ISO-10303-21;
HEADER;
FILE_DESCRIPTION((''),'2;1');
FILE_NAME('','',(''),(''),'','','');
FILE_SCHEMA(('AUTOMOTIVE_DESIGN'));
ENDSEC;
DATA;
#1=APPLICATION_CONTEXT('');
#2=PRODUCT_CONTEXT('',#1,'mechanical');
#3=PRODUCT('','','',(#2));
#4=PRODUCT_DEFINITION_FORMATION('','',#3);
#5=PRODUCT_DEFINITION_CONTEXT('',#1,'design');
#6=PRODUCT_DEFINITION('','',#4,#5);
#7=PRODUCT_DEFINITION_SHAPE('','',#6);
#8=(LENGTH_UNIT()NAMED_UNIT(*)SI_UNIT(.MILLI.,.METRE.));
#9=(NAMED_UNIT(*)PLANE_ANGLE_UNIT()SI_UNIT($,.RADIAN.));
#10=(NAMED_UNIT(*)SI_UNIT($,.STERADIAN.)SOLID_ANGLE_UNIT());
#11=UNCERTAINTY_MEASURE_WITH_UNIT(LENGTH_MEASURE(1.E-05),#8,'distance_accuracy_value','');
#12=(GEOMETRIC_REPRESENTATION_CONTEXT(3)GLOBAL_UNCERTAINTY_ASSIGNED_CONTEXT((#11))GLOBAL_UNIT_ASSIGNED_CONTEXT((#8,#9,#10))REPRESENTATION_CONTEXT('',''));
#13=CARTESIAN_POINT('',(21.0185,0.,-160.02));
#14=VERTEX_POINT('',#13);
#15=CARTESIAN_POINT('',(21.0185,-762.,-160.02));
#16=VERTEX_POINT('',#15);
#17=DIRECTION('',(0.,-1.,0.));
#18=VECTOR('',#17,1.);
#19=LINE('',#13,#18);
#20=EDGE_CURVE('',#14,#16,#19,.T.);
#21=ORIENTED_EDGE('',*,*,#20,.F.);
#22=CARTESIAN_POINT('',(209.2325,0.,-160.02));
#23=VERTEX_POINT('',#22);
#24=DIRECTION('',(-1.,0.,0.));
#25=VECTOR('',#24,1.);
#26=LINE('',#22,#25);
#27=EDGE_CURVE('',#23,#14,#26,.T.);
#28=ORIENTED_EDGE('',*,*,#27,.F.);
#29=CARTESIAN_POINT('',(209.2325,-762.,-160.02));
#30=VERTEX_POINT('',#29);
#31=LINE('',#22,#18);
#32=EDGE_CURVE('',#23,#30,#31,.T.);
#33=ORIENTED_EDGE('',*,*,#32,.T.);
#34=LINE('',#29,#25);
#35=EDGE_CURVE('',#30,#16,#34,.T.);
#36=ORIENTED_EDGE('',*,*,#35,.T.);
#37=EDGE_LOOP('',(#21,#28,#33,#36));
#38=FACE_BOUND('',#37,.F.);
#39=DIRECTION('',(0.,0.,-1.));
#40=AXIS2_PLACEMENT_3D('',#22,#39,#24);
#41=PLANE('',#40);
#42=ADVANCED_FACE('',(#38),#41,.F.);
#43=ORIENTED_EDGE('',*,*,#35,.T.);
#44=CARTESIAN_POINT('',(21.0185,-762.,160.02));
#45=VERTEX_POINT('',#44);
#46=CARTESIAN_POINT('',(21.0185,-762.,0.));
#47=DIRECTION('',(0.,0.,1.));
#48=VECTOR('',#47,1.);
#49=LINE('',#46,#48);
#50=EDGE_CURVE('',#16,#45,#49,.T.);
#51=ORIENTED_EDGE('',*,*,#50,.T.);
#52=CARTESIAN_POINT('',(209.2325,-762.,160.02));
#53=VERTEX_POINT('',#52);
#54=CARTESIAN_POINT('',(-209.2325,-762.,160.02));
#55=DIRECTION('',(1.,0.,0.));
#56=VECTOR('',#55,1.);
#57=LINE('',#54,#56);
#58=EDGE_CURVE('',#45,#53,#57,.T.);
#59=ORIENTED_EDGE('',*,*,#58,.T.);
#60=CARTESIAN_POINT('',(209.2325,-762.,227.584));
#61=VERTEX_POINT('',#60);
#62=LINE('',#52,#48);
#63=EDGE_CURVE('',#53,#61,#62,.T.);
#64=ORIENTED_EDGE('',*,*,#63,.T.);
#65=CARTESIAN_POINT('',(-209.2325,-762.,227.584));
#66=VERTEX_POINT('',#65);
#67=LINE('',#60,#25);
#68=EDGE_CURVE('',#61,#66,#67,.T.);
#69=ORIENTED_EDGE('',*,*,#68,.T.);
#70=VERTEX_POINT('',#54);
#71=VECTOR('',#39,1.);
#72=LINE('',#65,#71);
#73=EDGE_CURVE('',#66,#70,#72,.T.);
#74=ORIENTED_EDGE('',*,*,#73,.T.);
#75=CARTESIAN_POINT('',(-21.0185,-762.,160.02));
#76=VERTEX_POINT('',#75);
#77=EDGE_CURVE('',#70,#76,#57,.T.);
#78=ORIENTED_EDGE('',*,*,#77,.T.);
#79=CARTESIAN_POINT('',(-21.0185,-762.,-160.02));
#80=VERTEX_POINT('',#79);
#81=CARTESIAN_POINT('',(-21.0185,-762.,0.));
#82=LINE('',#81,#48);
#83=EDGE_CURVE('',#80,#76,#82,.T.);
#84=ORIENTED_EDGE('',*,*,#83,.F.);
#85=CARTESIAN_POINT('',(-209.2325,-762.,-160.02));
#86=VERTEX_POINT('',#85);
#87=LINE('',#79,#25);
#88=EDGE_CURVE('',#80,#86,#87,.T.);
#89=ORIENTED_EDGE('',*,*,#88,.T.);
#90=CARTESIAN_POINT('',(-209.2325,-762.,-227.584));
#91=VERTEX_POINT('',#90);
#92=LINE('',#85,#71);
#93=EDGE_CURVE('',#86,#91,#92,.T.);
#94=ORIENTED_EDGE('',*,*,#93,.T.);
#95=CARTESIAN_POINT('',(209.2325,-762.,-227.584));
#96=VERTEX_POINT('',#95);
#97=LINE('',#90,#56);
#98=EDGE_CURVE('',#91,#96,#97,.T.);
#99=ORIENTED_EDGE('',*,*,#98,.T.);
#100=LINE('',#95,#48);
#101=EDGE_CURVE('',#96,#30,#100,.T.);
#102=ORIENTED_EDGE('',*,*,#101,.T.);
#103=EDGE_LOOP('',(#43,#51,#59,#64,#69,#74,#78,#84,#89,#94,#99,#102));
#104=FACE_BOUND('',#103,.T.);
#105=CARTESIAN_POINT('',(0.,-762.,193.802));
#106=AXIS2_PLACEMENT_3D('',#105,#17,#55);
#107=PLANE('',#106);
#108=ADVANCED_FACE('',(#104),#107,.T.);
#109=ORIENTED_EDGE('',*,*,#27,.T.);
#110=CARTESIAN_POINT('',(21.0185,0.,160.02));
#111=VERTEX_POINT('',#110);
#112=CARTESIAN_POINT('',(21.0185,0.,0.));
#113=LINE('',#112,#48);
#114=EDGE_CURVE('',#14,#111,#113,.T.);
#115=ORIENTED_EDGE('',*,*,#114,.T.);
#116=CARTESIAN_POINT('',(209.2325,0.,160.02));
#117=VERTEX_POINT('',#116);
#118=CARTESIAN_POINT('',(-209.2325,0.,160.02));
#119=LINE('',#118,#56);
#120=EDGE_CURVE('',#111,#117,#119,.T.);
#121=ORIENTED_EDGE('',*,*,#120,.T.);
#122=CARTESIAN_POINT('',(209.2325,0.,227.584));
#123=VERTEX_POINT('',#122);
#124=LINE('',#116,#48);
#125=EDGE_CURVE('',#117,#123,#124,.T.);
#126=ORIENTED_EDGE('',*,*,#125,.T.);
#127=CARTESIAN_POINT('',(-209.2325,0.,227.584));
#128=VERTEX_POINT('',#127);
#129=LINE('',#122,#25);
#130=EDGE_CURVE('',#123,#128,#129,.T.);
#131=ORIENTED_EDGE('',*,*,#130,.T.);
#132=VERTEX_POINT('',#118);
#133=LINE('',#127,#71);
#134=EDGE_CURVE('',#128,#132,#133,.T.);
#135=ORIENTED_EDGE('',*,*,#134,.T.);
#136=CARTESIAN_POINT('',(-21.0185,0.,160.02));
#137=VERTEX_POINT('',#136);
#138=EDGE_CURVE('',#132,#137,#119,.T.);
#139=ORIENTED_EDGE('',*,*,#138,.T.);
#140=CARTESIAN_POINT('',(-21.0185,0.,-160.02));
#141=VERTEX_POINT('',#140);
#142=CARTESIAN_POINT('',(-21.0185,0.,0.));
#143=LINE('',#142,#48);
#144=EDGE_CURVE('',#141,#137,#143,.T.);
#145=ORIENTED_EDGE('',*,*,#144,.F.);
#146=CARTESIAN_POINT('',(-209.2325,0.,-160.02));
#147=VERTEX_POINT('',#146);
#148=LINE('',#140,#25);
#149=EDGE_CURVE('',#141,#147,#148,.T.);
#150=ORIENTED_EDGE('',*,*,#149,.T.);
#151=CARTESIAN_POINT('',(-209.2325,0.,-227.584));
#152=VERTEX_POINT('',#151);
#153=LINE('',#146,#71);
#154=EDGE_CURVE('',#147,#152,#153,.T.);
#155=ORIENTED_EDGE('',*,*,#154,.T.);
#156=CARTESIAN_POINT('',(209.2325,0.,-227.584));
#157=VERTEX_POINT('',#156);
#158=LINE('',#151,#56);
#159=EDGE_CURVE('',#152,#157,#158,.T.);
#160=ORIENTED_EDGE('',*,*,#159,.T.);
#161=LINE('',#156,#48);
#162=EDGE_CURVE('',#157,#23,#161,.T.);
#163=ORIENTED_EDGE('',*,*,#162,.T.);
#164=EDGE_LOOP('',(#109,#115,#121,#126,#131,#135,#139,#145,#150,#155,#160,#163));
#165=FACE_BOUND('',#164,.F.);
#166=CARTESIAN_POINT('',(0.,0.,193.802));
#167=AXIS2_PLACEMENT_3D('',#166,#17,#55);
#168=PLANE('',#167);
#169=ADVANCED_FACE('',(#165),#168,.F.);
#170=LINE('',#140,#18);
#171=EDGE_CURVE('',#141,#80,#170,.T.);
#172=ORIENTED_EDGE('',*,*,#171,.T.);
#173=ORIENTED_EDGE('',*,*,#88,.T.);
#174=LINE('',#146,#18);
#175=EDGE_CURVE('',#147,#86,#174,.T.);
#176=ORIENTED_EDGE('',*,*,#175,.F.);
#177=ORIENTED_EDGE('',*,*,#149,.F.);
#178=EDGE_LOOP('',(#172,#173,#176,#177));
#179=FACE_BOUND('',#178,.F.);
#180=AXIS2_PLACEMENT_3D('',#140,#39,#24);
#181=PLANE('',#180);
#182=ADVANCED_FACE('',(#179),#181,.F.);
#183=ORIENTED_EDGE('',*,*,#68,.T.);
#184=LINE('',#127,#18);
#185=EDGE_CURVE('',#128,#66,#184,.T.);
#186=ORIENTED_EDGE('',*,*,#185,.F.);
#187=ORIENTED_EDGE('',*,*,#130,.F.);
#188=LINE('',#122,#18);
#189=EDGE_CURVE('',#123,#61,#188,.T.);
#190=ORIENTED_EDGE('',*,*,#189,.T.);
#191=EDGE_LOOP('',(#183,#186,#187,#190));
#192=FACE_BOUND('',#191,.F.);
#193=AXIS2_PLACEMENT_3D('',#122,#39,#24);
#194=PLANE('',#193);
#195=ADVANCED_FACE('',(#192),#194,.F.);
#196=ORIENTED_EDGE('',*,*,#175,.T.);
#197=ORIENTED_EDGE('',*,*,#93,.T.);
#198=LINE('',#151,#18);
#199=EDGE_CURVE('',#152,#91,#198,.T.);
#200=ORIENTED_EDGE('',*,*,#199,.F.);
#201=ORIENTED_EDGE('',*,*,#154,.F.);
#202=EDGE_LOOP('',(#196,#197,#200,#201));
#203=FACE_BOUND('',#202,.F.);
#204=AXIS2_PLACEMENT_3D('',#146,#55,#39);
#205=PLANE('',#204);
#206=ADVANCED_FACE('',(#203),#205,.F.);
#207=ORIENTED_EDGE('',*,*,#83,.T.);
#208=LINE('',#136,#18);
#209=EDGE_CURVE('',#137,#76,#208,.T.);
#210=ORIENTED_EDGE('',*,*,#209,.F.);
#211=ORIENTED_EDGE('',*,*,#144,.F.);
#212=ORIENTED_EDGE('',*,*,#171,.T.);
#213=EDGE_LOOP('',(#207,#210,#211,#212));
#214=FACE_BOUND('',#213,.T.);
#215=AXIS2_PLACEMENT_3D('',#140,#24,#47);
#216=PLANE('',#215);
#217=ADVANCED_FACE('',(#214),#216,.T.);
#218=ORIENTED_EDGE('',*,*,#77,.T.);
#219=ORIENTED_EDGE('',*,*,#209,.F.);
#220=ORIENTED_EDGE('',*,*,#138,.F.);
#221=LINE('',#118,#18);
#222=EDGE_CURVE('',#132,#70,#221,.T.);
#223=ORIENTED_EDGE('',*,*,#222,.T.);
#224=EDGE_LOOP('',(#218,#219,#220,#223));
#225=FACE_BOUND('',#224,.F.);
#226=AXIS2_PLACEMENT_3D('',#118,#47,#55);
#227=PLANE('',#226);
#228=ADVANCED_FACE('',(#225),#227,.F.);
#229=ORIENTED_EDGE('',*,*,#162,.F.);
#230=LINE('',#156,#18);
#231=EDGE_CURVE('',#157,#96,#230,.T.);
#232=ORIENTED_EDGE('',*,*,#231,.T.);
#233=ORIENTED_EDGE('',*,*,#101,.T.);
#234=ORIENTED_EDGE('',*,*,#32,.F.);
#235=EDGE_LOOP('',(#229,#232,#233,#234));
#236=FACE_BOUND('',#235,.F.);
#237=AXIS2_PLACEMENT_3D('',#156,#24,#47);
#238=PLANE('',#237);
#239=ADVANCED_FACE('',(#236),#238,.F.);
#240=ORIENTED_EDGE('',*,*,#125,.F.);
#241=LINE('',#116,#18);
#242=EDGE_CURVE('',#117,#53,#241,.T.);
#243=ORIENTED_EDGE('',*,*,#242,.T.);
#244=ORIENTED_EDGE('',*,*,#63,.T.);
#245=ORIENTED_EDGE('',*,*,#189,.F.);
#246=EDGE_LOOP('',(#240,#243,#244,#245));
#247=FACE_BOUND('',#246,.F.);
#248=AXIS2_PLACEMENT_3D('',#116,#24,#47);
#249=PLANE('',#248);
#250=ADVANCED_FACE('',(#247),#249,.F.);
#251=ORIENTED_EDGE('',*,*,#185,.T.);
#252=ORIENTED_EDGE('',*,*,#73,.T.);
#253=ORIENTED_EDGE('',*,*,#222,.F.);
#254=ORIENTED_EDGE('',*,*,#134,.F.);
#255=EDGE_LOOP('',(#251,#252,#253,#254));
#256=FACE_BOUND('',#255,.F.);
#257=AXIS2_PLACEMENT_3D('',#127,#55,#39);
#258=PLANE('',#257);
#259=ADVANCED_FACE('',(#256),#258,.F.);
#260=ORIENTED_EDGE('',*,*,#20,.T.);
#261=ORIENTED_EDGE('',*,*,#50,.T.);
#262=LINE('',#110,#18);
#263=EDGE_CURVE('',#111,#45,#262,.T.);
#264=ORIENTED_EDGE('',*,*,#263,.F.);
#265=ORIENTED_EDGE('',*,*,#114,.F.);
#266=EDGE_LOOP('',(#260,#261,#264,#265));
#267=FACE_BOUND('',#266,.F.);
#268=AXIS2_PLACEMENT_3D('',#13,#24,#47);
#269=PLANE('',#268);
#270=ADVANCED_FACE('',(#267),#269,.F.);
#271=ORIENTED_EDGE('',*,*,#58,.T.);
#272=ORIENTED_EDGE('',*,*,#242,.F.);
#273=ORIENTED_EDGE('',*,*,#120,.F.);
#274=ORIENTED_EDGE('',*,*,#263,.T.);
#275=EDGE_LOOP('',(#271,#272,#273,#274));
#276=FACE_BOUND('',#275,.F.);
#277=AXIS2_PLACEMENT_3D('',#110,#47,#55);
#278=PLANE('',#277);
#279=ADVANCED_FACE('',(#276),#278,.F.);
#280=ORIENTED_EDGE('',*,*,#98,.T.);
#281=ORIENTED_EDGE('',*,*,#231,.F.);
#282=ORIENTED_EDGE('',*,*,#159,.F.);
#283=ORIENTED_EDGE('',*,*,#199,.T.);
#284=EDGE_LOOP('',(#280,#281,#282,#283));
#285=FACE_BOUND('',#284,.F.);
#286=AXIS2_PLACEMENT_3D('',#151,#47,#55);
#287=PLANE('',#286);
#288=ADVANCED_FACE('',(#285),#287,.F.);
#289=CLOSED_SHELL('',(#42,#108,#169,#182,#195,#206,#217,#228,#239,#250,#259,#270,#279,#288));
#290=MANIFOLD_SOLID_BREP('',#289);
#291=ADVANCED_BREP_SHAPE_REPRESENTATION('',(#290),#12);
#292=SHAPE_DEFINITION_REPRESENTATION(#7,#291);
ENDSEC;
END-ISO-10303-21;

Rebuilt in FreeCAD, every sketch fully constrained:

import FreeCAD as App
import Part
import Sketcher
Q = App.Units.Quantity


def add_polygon(sketch, points):
    """Adds a closed chain of lines whose ends are joined by coincident constraints."""
    first, n = sketch.GeometryCount, len(points)
    for a, b in zip(points, points[1:] + points[:1]):
        sketch.addGeometry(Part.LineSegment(App.Vector(*a, 0), App.Vector(*b, 0)), False)
    for i in range(n):
        sketch.addConstraint(Sketcher.Constraint("Coincident", first + i, 2, first + (i + 1) % n, 1))

doc = App.newDocument("Part")
body = doc.addObject("PartDesign::Body", "Body")

sketch1 = body.newObject("Sketcher::SketchObject", "Sketch")
sketch1.AttachmentSupport = (doc.getObject("XZ_Plane"), [""])
sketch1.MapMode = "FlatFace"
add_polygon(sketch1, [(-209, 160), (-21, 160), (-21, -160), (-209, -160), (-209, -228), (209, -228), (209, -160), (21, -160), (21, 160), (209, 160), (209, 228), (-209, 228)])
sketch1.addConstraint([
    Sketcher.Constraint("Horizontal", 0),
    Sketcher.Constraint("Vertical", 1),
    Sketcher.Constraint("Horizontal", 2),
    Sketcher.Constraint("Vertical", 3),
    Sketcher.Constraint("Horizontal", 4),
    Sketcher.Constraint("Vertical", 5),
    Sketcher.Constraint("Horizontal", 6),
    Sketcher.Constraint("Vertical", 7),
    Sketcher.Constraint("Horizontal", 8),
    Sketcher.Constraint("Vertical", 9),
    Sketcher.Constraint("Horizontal", 10),
    Sketcher.Constraint("Vertical", 11),
    Sketcher.Constraint("Symmetric", 0, 2, 6, 2, -1, 1),
    Sketcher.Constraint("Symmetric", 2, 2, 8, 2, -1, 1),
    Sketcher.Constraint("Symmetric", 4, 2, 10, 2, -1, 1),
    Sketcher.Constraint("Symmetric", 2, 2, 5, 2, -2),
    Sketcher.Constraint("DistanceY", 1, 2, 1, 1, Q("12.6 in")),
    Sketcher.Constraint("DistanceX", 0, 1, 0, 2, Q("7.41 in")),
    Sketcher.Constraint("DistanceY", 3, 2, 3, 1, Q("2.66 in")),
    Sketcher.Constraint("DistanceX", 4, 1, 4, 2, Q("16.475 in")),
])
pad1 = body.newObject("PartDesign::Pad", "Pad")
pad1.Profile = sketch1
pad1.Length = Q("30 in")

doc.recompute()
